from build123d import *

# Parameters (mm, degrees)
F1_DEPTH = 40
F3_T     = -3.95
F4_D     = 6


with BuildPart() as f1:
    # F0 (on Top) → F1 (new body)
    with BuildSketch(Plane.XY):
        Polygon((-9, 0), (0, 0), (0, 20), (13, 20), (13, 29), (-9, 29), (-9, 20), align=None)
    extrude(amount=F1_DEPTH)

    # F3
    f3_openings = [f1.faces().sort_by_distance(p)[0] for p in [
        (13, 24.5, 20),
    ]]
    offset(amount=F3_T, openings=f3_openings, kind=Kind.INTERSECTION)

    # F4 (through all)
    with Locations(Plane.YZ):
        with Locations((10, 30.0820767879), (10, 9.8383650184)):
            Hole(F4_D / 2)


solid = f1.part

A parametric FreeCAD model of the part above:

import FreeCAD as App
import Part
import Sketcher


def faces_at(feature, points):
    """Names of the faces that lie closest to the given points."""
    faces = feature.Shape.Faces
    near = lambda p: min(range(len(faces)), key=lambda i: faces[i].distToShape(Part.Vertex(*p))[0])
    return sorted({f"Face{near(p) + 1}" for p in points})


def add_polygon(sketch, points):
    """Adds a closed chain of lines whose ends are joined by coincident constraints."""
    first, n = sketch.GeometryCount, len(points)
    for a, b in zip(points, points[1:] + points[:1]):
        sketch.addGeometry(Part.LineSegment(App.Vector(*a, 0), App.Vector(*b, 0)), False)
    for i in range(n):
        sketch.addConstraint(Sketcher.Constraint("Coincident", first + i, 2, first + (i + 1) % n, 1))

doc = App.newDocument("Part")
body = doc.addObject("PartDesign::Body", "Body")

# Sketch on XY plane
sketch1 = body.newObject("Sketcher::SketchObject", "Sketch")
sketch1.AttachmentSupport = (doc.getObject("XY_Plane"), [""])
sketch1.MapMode = "FlatFace"
add_polygon(sketch1, [(-9, 0), (0, 0), (0, 20), (13, 20), (13, 29), (-9, 29)])  # lines 0-5
sketch1.addConstraint(Sketcher.Constraint("Horizontal", 0))
sketch1.addConstraint(Sketcher.Constraint("Vertical", 1))
sketch1.addConstraint(Sketcher.Constraint("Horizontal", 2))
sketch1.addConstraint(Sketcher.Constraint("Vertical", 3))
sketch1.addConstraint(Sketcher.Constraint("Horizontal", 4))
sketch1.addConstraint(Sketcher.Constraint("Vertical", 5))
sketch1.addConstraint(Sketcher.Constraint("Coincident", 0, 2, -1, 1))
sketch1.addConstraint(Sketcher.Constraint("Equal", 0, 3))
sketch1.addConstraint(Sketcher.Constraint("DistanceX", 0, 1, 0, 2, 9.0))
sketch1.addConstraint(Sketcher.Constraint("DistanceX", 2, 1, 2, 2, 13.0))
sketch1.addConstraint(Sketcher.Constraint("DistanceY", 1, 1, 1, 2, 20.0))
pad1 = body.newObject("PartDesign::Pad", "Pad")
pad1.Profile = sketch1
pad1.Length = 40
doc.recompute()

thickness = body.newObject("PartDesign::Thickness", "Thickness")
thickness.Base = (pad1, faces_at(pad1, [(13, 24.5, 20)]))
thickness.Value = 3.95
thickness.Reversed = True
thickness.Join = "Intersection"

# Sketch on YZ plane
sketch2 = body.newObject("Sketcher::SketchObject", "Sketch001")
sketch2.AttachmentSupport = (doc.getObject("YZ_Plane"), [""])
sketch2.MapMode = "FlatFace"
sketch2.addGeometry(Part.Circle(App.Vector(10, 30.1, 0), App.Vector(0, 0, 1), 3), False)
sketch2.addGeometry(Part.Circle(App.Vector(10, 9.8, 0), App.Vector(0, 0, 1), 3), False)
sketch2.addConstraint(Sketcher.Constraint("Equal", 0, 1))
sketch2.addConstraint(Sketcher.Constraint("Vertical", 0, 3, 1, 3))
sketch2.addConstraint(Sketcher.Constraint("Diameter", 0, 6.0))
sketch2.addConstraint(Sketcher.Constraint("DistanceX", -1, 1, 0, 3, 10.0))
sketch2.addConstraint(Sketcher.Constraint("DistanceY", 1, 3, 0, 3, 20.243712))
sketch2.addConstraint(Sketcher.Constraint("DistanceY", -1, 1, 0, 3, 30.082077))
doc.recompute()
hole = body.newObject("PartDesign::Hole", "Hole")
hole.Profile = sketch2
hole.ThreadType = "None"
hole.Diameter = 6
hole.DepthType = "ThroughAll"

doc.recompute()
